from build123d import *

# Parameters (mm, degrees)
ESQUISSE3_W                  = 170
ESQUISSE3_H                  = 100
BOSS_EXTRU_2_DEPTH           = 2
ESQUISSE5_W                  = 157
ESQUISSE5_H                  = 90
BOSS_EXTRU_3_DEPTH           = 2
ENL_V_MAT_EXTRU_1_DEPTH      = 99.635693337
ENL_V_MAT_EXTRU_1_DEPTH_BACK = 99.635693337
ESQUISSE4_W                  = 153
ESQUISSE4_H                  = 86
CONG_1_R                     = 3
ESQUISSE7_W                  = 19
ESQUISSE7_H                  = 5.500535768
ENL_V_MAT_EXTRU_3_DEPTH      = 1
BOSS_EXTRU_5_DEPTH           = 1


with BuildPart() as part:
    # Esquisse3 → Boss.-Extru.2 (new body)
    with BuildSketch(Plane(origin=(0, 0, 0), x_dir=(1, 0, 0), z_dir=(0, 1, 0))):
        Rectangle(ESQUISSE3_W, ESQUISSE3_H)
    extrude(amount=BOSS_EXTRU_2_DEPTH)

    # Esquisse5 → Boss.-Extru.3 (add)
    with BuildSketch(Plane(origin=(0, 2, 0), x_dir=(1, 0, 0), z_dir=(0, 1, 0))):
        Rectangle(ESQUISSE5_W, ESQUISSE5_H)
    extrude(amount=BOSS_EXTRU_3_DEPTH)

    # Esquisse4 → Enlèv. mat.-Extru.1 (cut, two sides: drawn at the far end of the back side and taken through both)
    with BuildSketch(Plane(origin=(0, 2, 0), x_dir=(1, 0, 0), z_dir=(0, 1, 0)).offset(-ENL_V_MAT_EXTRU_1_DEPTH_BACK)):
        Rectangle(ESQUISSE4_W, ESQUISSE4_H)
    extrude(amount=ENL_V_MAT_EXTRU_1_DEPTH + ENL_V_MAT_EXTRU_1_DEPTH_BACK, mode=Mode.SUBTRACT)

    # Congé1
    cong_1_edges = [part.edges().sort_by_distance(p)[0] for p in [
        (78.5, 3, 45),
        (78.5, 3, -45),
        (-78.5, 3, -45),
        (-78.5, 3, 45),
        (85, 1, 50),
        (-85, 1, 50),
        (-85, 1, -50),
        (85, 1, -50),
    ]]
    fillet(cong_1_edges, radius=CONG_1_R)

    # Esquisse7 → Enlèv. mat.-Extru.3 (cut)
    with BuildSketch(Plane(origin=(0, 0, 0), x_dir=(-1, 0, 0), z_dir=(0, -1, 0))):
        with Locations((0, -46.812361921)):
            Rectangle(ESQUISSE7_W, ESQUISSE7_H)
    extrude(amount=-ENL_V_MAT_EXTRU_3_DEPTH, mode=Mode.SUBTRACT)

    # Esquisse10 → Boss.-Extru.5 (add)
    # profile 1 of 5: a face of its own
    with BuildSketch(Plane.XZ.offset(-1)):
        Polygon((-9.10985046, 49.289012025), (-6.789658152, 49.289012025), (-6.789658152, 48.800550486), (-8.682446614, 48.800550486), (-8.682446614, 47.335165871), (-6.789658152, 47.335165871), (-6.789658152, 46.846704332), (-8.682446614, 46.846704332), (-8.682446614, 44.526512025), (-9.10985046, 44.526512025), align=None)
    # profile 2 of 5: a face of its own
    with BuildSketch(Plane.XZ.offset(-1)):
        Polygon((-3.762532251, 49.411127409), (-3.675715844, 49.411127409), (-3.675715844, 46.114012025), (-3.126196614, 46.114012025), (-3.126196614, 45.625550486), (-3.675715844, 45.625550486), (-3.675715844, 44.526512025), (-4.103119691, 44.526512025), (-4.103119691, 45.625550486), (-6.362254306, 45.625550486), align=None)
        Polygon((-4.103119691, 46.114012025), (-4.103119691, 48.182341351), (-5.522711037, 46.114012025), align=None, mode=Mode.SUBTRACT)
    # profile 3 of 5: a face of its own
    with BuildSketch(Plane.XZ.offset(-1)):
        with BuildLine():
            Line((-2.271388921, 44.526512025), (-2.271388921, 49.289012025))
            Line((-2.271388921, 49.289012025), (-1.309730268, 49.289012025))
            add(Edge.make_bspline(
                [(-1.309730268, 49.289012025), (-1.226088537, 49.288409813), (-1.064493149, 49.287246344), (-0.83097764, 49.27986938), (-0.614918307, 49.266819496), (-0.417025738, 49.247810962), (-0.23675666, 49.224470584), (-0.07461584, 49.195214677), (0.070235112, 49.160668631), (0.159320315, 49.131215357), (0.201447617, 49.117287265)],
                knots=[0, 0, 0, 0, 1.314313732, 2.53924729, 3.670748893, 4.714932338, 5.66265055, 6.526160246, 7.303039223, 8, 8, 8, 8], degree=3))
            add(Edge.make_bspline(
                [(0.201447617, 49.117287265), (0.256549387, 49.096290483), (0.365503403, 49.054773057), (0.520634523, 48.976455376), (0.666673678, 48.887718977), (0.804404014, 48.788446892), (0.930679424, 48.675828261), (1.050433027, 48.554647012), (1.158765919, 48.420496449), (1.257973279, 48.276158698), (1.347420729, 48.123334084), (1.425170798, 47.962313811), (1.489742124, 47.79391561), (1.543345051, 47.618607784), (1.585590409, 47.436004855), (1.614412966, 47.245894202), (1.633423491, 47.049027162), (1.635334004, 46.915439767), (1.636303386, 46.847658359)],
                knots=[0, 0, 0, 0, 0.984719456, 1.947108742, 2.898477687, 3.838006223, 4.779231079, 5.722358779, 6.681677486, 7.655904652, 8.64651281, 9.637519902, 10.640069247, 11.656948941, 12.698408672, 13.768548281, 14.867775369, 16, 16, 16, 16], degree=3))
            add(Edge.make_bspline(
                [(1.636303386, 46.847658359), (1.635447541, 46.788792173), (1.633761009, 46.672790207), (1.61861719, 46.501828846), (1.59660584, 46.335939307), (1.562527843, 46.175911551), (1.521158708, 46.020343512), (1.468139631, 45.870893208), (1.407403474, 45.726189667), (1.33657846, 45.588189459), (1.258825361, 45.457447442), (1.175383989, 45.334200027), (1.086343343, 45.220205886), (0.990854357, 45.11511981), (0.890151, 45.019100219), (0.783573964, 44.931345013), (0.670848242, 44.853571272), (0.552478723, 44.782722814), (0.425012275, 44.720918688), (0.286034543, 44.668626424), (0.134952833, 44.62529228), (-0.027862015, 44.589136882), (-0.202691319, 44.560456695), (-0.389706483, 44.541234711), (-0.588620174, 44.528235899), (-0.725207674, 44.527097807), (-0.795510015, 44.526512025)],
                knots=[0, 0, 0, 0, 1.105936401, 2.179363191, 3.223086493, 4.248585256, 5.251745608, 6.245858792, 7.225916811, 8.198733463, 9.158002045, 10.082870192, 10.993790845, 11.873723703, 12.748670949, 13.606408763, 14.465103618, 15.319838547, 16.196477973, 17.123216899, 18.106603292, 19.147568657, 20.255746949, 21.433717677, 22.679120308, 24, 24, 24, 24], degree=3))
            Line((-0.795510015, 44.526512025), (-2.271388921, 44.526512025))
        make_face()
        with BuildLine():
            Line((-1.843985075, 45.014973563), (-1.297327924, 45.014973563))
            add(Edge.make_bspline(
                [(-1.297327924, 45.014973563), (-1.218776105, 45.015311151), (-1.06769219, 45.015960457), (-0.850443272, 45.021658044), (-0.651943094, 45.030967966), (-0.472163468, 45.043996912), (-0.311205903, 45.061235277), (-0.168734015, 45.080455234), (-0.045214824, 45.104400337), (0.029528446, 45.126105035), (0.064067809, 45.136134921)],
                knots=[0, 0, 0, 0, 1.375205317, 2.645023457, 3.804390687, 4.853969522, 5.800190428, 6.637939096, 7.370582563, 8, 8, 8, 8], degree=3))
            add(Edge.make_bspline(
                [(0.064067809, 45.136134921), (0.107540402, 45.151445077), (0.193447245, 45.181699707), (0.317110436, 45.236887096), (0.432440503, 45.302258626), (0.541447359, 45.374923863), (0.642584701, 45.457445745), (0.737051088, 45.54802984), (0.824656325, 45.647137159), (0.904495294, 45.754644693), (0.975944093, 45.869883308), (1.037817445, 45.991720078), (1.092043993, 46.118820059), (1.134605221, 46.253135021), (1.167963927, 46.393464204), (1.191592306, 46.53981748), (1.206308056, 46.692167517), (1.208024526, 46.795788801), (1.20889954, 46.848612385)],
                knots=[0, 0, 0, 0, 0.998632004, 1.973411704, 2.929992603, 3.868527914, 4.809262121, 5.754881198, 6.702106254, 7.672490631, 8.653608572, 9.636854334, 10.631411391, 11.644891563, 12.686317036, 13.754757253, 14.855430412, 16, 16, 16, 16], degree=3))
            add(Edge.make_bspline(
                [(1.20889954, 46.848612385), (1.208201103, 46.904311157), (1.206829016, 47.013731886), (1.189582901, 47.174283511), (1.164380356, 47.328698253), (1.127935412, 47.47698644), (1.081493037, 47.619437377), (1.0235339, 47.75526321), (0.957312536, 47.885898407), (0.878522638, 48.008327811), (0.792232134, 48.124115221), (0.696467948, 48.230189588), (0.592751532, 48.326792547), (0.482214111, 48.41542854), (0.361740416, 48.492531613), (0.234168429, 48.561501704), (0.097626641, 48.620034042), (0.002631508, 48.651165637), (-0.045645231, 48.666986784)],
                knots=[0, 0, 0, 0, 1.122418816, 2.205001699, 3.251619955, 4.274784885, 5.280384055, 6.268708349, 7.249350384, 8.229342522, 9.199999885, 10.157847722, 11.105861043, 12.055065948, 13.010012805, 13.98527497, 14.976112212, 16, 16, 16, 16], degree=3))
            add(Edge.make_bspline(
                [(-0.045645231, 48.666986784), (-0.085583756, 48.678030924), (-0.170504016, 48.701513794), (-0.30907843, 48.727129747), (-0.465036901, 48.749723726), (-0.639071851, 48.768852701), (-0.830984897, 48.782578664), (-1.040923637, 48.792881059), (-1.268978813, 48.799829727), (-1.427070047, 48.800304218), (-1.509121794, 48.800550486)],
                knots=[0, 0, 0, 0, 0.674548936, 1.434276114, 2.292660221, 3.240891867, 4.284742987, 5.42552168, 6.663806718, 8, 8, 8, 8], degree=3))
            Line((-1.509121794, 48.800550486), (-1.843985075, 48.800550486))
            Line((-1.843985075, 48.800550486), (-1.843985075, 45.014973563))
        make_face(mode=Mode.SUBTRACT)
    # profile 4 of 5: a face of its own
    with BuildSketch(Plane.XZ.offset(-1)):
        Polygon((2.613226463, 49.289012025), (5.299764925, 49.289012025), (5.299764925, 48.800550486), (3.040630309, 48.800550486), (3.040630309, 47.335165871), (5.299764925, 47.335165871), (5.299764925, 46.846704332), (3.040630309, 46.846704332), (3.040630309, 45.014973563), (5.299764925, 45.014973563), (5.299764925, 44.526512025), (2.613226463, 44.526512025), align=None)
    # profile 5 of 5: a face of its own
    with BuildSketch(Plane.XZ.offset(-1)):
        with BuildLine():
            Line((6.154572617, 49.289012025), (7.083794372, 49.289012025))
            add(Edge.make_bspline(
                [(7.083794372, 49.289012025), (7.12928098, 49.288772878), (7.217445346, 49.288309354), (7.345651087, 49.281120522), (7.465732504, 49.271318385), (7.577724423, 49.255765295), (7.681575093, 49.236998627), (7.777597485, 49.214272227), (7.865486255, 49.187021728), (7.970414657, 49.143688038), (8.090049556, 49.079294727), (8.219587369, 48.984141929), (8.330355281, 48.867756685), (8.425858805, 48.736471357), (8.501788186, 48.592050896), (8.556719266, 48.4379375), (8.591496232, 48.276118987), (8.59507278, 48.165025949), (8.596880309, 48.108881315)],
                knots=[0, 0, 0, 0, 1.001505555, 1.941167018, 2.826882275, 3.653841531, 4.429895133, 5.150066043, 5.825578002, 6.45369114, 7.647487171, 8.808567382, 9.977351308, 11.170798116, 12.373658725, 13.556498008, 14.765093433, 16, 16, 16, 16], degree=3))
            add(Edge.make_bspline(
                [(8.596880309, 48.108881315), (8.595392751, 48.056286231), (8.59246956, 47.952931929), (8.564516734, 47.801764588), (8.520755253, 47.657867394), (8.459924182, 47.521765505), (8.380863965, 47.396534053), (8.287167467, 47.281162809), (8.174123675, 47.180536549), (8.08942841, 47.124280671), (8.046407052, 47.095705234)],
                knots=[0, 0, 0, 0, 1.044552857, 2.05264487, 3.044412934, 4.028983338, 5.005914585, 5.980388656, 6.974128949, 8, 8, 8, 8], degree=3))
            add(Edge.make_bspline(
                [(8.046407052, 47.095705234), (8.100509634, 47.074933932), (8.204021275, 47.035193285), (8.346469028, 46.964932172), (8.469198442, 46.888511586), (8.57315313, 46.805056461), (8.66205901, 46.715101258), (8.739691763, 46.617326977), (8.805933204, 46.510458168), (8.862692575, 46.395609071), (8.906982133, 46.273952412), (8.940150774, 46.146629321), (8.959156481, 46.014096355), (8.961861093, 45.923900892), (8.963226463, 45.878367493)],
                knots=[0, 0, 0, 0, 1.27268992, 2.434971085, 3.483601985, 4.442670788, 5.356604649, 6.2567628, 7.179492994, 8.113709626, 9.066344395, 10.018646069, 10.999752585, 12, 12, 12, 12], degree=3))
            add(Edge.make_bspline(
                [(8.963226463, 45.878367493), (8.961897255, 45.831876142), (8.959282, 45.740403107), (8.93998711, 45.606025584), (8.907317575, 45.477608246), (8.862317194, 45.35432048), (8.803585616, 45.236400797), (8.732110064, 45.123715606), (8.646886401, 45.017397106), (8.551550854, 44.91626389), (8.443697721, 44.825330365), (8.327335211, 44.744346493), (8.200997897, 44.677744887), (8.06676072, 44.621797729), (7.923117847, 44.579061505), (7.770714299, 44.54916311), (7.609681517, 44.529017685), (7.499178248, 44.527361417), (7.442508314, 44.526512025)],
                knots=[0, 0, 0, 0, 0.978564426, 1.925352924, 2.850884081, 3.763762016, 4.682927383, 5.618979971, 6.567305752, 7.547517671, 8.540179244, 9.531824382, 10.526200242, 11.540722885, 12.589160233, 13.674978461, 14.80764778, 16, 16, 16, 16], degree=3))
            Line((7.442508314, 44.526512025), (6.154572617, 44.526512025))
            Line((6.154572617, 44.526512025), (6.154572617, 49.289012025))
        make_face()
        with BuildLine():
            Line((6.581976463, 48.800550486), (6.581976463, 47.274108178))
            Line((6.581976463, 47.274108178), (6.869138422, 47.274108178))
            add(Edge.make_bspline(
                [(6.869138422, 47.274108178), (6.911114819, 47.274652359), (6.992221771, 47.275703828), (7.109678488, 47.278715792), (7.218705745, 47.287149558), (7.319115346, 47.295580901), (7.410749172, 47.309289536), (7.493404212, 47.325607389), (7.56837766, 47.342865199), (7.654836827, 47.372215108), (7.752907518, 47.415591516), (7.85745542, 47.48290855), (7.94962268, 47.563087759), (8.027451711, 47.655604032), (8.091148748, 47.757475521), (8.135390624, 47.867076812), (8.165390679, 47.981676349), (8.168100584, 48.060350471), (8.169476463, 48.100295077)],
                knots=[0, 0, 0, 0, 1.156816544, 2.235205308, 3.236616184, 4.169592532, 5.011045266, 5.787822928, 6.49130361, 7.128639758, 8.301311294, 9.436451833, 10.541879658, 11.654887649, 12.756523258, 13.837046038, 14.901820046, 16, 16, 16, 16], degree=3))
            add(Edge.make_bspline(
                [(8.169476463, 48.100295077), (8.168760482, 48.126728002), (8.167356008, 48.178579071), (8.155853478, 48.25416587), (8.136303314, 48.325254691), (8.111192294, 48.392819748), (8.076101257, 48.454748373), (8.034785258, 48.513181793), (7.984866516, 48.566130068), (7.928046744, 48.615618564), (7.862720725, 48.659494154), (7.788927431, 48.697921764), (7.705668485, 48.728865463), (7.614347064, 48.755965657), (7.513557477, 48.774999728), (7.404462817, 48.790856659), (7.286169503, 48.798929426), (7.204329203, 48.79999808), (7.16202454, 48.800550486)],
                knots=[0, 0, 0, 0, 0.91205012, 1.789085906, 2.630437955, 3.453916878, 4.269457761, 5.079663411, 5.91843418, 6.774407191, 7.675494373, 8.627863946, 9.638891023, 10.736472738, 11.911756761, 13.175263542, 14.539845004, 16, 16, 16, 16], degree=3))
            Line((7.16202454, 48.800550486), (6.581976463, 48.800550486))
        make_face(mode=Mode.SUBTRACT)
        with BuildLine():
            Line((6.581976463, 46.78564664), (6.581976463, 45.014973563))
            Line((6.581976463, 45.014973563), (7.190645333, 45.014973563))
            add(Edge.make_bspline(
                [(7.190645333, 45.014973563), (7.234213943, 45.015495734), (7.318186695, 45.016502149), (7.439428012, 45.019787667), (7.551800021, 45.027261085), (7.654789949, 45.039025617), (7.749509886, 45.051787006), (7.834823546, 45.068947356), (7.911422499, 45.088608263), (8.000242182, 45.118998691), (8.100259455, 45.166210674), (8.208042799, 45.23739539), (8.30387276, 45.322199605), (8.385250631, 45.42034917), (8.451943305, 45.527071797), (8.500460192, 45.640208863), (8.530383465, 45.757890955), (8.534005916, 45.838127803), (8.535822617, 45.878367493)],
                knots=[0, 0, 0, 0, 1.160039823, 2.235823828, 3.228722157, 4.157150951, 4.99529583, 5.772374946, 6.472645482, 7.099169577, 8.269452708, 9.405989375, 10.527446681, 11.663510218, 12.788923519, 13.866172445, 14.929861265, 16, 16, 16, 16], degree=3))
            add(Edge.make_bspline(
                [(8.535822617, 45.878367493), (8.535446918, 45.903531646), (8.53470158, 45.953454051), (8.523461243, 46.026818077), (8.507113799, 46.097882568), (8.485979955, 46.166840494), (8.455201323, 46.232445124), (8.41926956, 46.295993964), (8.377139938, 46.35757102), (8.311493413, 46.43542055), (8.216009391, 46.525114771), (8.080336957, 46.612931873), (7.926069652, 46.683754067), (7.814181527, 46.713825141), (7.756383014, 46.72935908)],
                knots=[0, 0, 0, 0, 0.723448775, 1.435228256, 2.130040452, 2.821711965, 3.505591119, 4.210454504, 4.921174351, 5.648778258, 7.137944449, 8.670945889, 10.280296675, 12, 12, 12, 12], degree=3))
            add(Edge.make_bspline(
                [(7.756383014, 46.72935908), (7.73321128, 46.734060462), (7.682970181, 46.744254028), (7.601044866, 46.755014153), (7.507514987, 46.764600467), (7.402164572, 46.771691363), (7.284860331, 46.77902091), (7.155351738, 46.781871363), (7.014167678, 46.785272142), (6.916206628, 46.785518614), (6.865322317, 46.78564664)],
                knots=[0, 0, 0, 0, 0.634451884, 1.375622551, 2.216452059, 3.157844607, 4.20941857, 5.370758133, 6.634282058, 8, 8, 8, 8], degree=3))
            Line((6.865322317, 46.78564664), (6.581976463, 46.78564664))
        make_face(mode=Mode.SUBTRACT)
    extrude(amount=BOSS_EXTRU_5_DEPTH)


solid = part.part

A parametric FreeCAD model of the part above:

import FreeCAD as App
import Part
import Sketcher
Q = App.Units.Quantity


def edges_at(feature, points):
    """Names of the edges that pass closest to the given points."""
    edges = feature.Shape.Edges
    near = lambda p: min(range(len(edges)), key=lambda i: edges[i].distToShape(Part.Vertex(*p))[0])
    return sorted({f"Edge{near(p) + 1}" for p in points})


def add_polygon(sketch, points):
    """Adds a closed chain of lines whose ends are joined by coincident constraints."""
    first, n = sketch.GeometryCount, len(points)
    for a, b in zip(points, points[1:] + points[:1]):
        sketch.addGeometry(Part.LineSegment(App.Vector(*a, 0), App.Vector(*b, 0)), False)
    for i in range(n):
        sketch.addConstraint(Sketcher.Constraint("Coincident", first + i, 2, first + (i + 1) % n, 1))

doc = App.newDocument("Part")
params = doc.addObject("Spreadsheet::Sheet", "Params")
for row, (alias, value) in enumerate([
    ("sketch1_width", "170 mm"),
    ("sketch1_height", "100 mm"),
    ("pad1_length", "2 mm"),
    ("sketch2_width", "157 mm"),
    ("sketch2_height", "90 mm"),
    ("pad2_length", "2 mm"),
    ("sketch3_width", "153 mm"),
    ("sketch3_height", "86 mm"),
    ("fillet_radius", "3 mm"),
    ("sketch4_width", "19 mm"),
    ("pocket2_length", "1 mm"),
    ("pad3_length", "1 mm"),
], start=1):
    params.set(f"A{row}", alias)
    params.set(f"B{row}", "=" + value)
    params.setAlias(f"B{row}", alias)

body = doc.addObject("PartDesign::Body", "Body")

sketch1 = body.newObject("Sketcher::SketchObject", "Sketch")
sketch1.AttachmentSupport = (doc.getObject("XZ_Plane"), [""])
sketch1.MapMode = "FlatFace"
add_polygon(sketch1, [(-85, -50), (-85, 50), (85, 50), (85, -50)])
sketch1.addConstraint([
    Sketcher.Constraint("Vertical", 0),
    Sketcher.Constraint("Horizontal", 1),
    Sketcher.Constraint("Vertical", 2),
    Sketcher.Constraint("Horizontal", 3),
    Sketcher.Constraint("Symmetric", 0, 2, 2, 2, -1, 1),
    Sketcher.Constraint("DistanceX", 1, 1, 1, 2, Q("170 mm")),
    Sketcher.Constraint("DistanceY", 0, 1, 0, 2, Q("100 mm")),
])
sketch1.setExpression("Constraints[9]", "Params.sketch1_width")
sketch1.setExpression("Constraints[10]", "Params.sketch1_height")
pad1 = body.newObject("PartDesign::Pad", "Pad")
pad1.Profile = sketch1
pad1.setExpression("Length", "Params.pad1_length")
pad1.Reversed = True

sketch2 = body.newObject("Sketcher::SketchObject", "Sketch001")
sketch2.AttachmentSupport = (doc.getObject("XZ_Plane"), [""])
sketch2.MapMode = "FlatFace"
sketch2.AttachmentOffset = App.Placement(App.Vector(0, 0, -2), App.Rotation())
add_polygon(sketch2, [(-78, -45), (-78, 45), (78, 45), (78, -45)])
sketch2.addConstraint([
    Sketcher.Constraint("Vertical", 0),
    Sketcher.Constraint("Horizontal", 1),
    Sketcher.Constraint("Vertical", 2),
    Sketcher.Constraint("Horizontal", 3),
    Sketcher.Constraint("Symmetric", 0, 2, 2, 2, -1, 1),
    Sketcher.Constraint("DistanceX", 1, 1, 1, 2, Q("157 mm")),
    Sketcher.Constraint("DistanceY", 0, 1, 0, 2, Q("90 mm")),
])
sketch2.setExpression("Constraints[9]", "Params.sketch2_width")
sketch2.setExpression("Constraints[10]", "Params.sketch2_height")
pad2 = body.newObject("PartDesign::Pad", "Pad001")
pad2.Profile = sketch2
pad2.setExpression("Length", "Params.pad2_length")
pad2.Reversed = True

sketch3 = body.newObject("Sketcher::SketchObject", "Sketch002")
sketch3.AttachmentSupport = (doc.getObject("XZ_Plane"), [""])
sketch3.MapMode = "FlatFace"
sketch3.AttachmentOffset = App.Placement(App.Vector(0, 0, -2), App.Rotation())
add_polygon(sketch3, [(-76, -43), (-76, 43), (76, 43), (76, -43)])
sketch3.addConstraint([
    Sketcher.Constraint("Vertical", 0),
    Sketcher.Constraint("Horizontal", 1),
    Sketcher.Constraint("Vertical", 2),
    Sketcher.Constraint("Horizontal", 3),
    Sketcher.Constraint("Symmetric", 0, 2, 2, 2, -1, 1),
    Sketcher.Constraint("DistanceX", 1, 1, 1, 2, Q("153 mm")),
    Sketcher.Constraint("DistanceY", 0, 1, 0, 2, Q("86 mm")),
])
sketch3.setExpression("Constraints[9]", "Params.sketch3_width")
sketch3.setExpression("Constraints[10]", "Params.sketch3_height")
pocket1 = body.newObject("PartDesign::Pocket", "Pocket")
pocket1.Profile = sketch3
pocket1.Type = "ThroughAll"
pocket1.Midplane = True
doc.recompute()

fillet = body.newObject("PartDesign::Fillet", "Fillet")
fillet.Base = (pocket1, edges_at(pocket1, [
    (78.5, 3, 45),
    (78.5, 3, -45),
    (-78.5, 3, -45),
    (-78.5, 3, 45),
    (85, 1, 50),
    (-85, 1, 50),
    (-85, 1, -50),
    (85, 1, -50),
]))
fillet.setExpression("Radius", "Params.fillet_radius")

sketch4 = body.newObject("Sketcher::SketchObject", "Sketch003")
sketch4.AttachmentSupport = (doc.getObject("XZ_Plane"), [""])
sketch4.MapMode = "FlatFace"
add_polygon(sketch4, [(10, 44), (10, 50), (-10, 50), (-10, 44)])
sketch4.addConstraint([
    Sketcher.Constraint("Vertical", 0),
    Sketcher.Constraint("Horizontal", 1),
    Sketcher.Constraint("Vertical", 2),
    Sketcher.Constraint("Horizontal", 3),
    Sketcher.Constraint("DistanceX", 1, 2, 1, 1, Q("19 mm")),
    Sketcher.Constraint("DistanceX", -1, 1, 0, 2, Q("9.5 mm")),
    Sketcher.Constraint("DistanceY", 0, 1, 0, 2, Q("5.500536 mm")),
    Sketcher.Constraint("DistanceY", -1, 1, 0, 2, Q("49.56263 mm")),
])
sketch4.setExpression("Constraints[8]", "Params.sketch4_width")
pocket2 = body.newObject("PartDesign::Pocket", "Pocket001")
pocket2.Profile = sketch4
pocket2.setExpression("Length", "Params.pocket2_length")

sketch5 = body.newObject("Sketcher::SketchObject", "Sketch004")
sketch5.AttachmentSupport = (doc.getObject("XZ_Plane"), [""])
sketch5.MapMode = "FlatFace"
sketch5.AttachmentOffset = App.Placement(App.Vector(0, 0, -1), App.Rotation())
add_polygon(sketch5, [(-6.789658, 49.289012), (-9.10985, 49.289012), (-9.10985, 44.526512), (-8.682447, 44.526512), (-8.682447, 46.846704), (-6.789658, 46.846704), (-6.789658, 47.335166), (-8.682447, 47.335166), (-8.682447, 48.80055), (-6.789658, 48.80055)])
add_polygon(sketch5, [(-3.675716, 49.411127), (-3.762532, 49.411127), (-6.362254, 45.62555), (-4.10312, 45.62555), (-4.10312, 44.526512), (-3.675716, 44.526512), (-3.675716, 45.62555), (-3.126197, 45.62555), (-3.126197, 46.114012), (-3.675716, 46.114012)])
add_polygon(sketch5, [(-4.10312, 46.114012), (-5.522711, 46.114012), (-4.10312, 48.182341)])
sketch5.addGeometry(Part.LineSegment(App.Vector(-2.271389, 49.289012, 0), App.Vector(-2.271389, 44.526512, 0)), False)
sketch5.addGeometry(Part.LineSegment(App.Vector(-2.271389, 44.526512, 0), App.Vector(-0.79551, 44.526512, 0)), False)
sketch5.addGeometry(Part.BSplineCurve([App.Vector(1.636303, 46.847658, 0), App.Vector(1.635448, 46.788792, 0), App.Vector(1.633761, 46.67279, 0), App.Vector(1.618617, 46.501829, 0), App.Vector(1.596606, 46.335939, 0), App.Vector(1.562528, 46.175912, 0), App.Vector(1.521159, 46.020344, 0), App.Vector(1.46814, 45.870893, 0), App.Vector(1.407403, 45.72619, 0), App.Vector(1.336578, 45.588189, 0), App.Vector(1.258825, 45.457447, 0), App.Vector(1.175384, 45.3342, 0), App.Vector(1.086343, 45.220206, 0), App.Vector(0.990854, 45.11512, 0), App.Vector(0.890151, 45.0191, 0), App.Vector(0.783574, 44.931345, 0), App.Vector(0.670848, 44.853571, 0), App.Vector(0.552479, 44.782723, 0), App.Vector(0.425012, 44.720919, 0), App.Vector(0.286035, 44.668626, 0), App.Vector(0.134953, 44.625292, 0), App.Vector(-0.027862, 44.589137, 0), App.Vector(-0.202691, 44.560457, 0), App.Vector(-0.389706, 44.541235, 0), App.Vector(-0.58862, 44.528236, 0), App.Vector(-0.725208, 44.527098, 0), App.Vector(-0.79551, 44.526512, 0)], [4, 1, 1, 1, 1, 1, 1, 1, 1, 1, 1, 1, 1, 1, 1, 1, 1, 1, 1, 1, 1, 1, 1, 1, 4], [0, 1.105936401, 2.179363191, 3.223086493, 4.248585256, 5.251745608, 6.245858792, 7.225916811, 8.198733463, 9.158002045, 10.082870192, 10.993790845, 11.873723703, 12.748670949, 13.606408763, 14.465103618, 15.319838547, 16.196477973, 17.123216899, 18.106603292, 19.147568657, 20.255746949, 21.433717677, 22.679120308, 24], False, 3, [1, 1, 1, 1, 1, 1, 1, 1, 1, 1, 1, 1, 1, 1, 1, 1, 1, 1, 1, 1, 1, 1, 1, 1, 1, 1, 1], False), False)
sketch5.addGeometry(Part.BSplineCurve([App.Vector(0.201448, 49.117287, 0), App.Vector(0.256549, 49.09629, 0), App.Vector(0.365503, 49.054773, 0), App.Vector(0.520635, 48.976455, 0), App.Vector(0.666674, 48.887719, 0), App.Vector(0.804404, 48.788447, 0), App.Vector(0.930679, 48.675828, 0), App.Vector(1.050433, 48.554647, 0), App.Vector(1.158766, 48.420496, 0), App.Vector(1.257973, 48.276159, 0), App.Vector(1.347421, 48.123334, 0), App.Vector(1.425171, 47.962314, 0), App.Vector(1.489742, 47.793916, 0), App.Vector(1.543345, 47.618608, 0), App.Vector(1.58559, 47.436005, 0), App.Vector(1.614413, 47.245894, 0), App.Vector(1.633423, 47.049027, 0), App.Vector(1.635334, 46.91544, 0), App.Vector(1.636303, 46.847658, 0)], [4, 1, 1, 1, 1, 1, 1, 1, 1, 1, 1, 1, 1, 1, 1, 1, 4], [0, 0.984719456, 1.947108742, 2.898477687, 3.838006223, 4.779231079, 5.722358779, 6.681677486, 7.655904652, 8.64651281, 9.637519902, 10.640069247, 11.656948941, 12.698408672, 13.768548281, 14.867775369, 16], False, 3, [1, 1, 1, 1, 1, 1, 1, 1, 1, 1, 1, 1, 1, 1, 1, 1, 1, 1, 1], False), False)
sketch5.addGeometry(Part.BSplineCurve([App.Vector(-1.30973, 49.289012, 0), App.Vector(-1.226089, 49.28841, 0), App.Vector(-1.064493, 49.287246, 0), App.Vector(-0.830978, 49.279869, 0), App.Vector(-0.614918, 49.266819, 0), App.Vector(-0.417026, 49.247811, 0), App.Vector(-0.236757, 49.224471, 0), App.Vector(-0.074616, 49.195215, 0), App.Vector(0.070235, 49.160669, 0), App.Vector(0.15932, 49.131215, 0), App.Vector(0.201448, 49.117287, 0)], [4, 1, 1, 1, 1, 1, 1, 1, 4], [0, 1.314313732, 2.53924729, 3.670748893, 4.714932338, 5.66265055, 6.526160246, 7.303039223, 8], False, 3, [1, 1, 1, 1, 1, 1, 1, 1, 1, 1, 1], False), False)
sketch5.addGeometry(Part.LineSegment(App.Vector(-1.30973, 49.289012, 0), App.Vector(-2.271389, 49.289012, 0)), False)
sketch5.addGeometry(Part.LineSegment(App.Vector(-1.843985, 45.014974, 0), App.Vector(-1.843985, 48.80055, 0)), False)
sketch5.addGeometry(Part.LineSegment(App.Vector(-1.843985, 48.80055, 0), App.Vector(-1.509122, 48.80055, 0)), False)
sketch5.addGeometry(Part.BSplineCurve([App.Vector(-0.045645, 48.666987, 0), App.Vector(-0.085584, 48.678031, 0), App.Vector(-0.170504, 48.701514, 0), App.Vector(-0.309078, 48.72713, 0), App.Vector(-0.465037, 48.749724, 0), App.Vector(-0.639072, 48.768853, 0), App.Vector(-0.830985, 48.782579, 0), App.Vector(-1.040924, 48.792881, 0), App.Vector(-1.268979, 48.79983, 0), App.Vector(-1.42707, 48.800304, 0), App.Vector(-1.509122, 48.80055, 0)], [4, 1, 1, 1, 1, 1, 1, 1, 4], [0, 0.674548936, 1.434276114, 2.292660221, 3.240891867, 4.284742987, 5.42552168, 6.663806718, 8], False, 3, [1, 1, 1, 1, 1, 1, 1, 1, 1, 1, 1], False), False)
sketch5.addGeometry(Part.BSplineCurve([App.Vector(1.2089, 46.848612, 0), App.Vector(1.208201, 46.904311, 0), App.Vector(1.206829, 47.013732, 0), App.Vector(1.189583, 47.174284, 0), App.Vector(1.16438, 47.328698, 0), App.Vector(1.127935, 47.476986, 0), App.Vector(1.081493, 47.619437, 0), App.Vector(1.023534, 47.755263, 0), App.Vector(0.957313, 47.885898, 0), App.Vector(0.878523, 48.008328, 0), App.Vector(0.792232, 48.124115, 0), App.Vector(0.696468, 48.23019, 0), App.Vector(0.592752, 48.326793, 0), App.Vector(0.482214, 48.415429, 0), App.Vector(0.36174, 48.492532, 0), App.Vector(0.234168, 48.561502, 0), App.Vector(0.097627, 48.620034, 0), App.Vector(0.002632, 48.651166, 0), App.Vector(-0.045645, 48.666987, 0)], [4, 1, 1, 1, 1, 1, 1, 1, 1, 1, 1, 1, 1, 1, 1, 1, 4], [0, 1.122418816, 2.205001699, 3.251619955, 4.274784885, 5.280384055, 6.268708349, 7.249350384, 8.229342522, 9.199999885, 10.157847722, 11.105861043, 12.055065948, 13.010012805, 13.98527497, 14.976112212, 16], False, 3, [1, 1, 1, 1, 1, 1, 1, 1, 1, 1, 1, 1, 1, 1, 1, 1, 1, 1, 1], False), False)
sketch5.addGeometry(Part.BSplineCurve([App.Vector(0.064068, 45.136135, 0), App.Vector(0.10754, 45.151445, 0), App.Vector(0.193447, 45.1817, 0), App.Vector(0.31711, 45.236887, 0), App.Vector(0.432441, 45.302259, 0), App.Vector(0.541447, 45.374924, 0), App.Vector(0.642585, 45.457446, 0), App.Vector(0.737051, 45.54803, 0), App.Vector(0.824656, 45.647137, 0), App.Vector(0.904495, 45.754645, 0), App.Vector(0.975944, 45.869883, 0), App.Vector(1.037817, 45.99172, 0), App.Vector(1.092044, 46.11882, 0), App.Vector(1.134605, 46.253135, 0), App.Vector(1.167964, 46.393464, 0), App.Vector(1.191592, 46.539817, 0), App.Vector(1.206308, 46.692168, 0), App.Vector(1.208025, 46.795789, 0), App.Vector(1.2089, 46.848612, 0)], [4, 1, 1, 1, 1, 1, 1, 1, 1, 1, 1, 1, 1, 1, 1, 1, 4], [0, 0.998632004, 1.973411704, 2.929992603, 3.868527914, 4.809262121, 5.754881198, 6.702106254, 7.672490631, 8.653608572, 9.636854334, 10.631411391, 11.644891563, 12.686317036, 13.754757253, 14.855430412, 16], False, 3, [1, 1, 1, 1, 1, 1, 1, 1, 1, 1, 1, 1, 1, 1, 1, 1, 1, 1, 1], False), False)
sketch5.addGeometry(Part.BSplineCurve([App.Vector(-1.297328, 45.014974, 0), App.Vector(-1.218776, 45.015311, 0), App.Vector(-1.067692, 45.01596, 0), App.Vector(-0.850443, 45.021658, 0), App.Vector(-0.651943, 45.030968, 0), App.Vector(-0.472163, 45.043997, 0), App.Vector(-0.311206, 45.061235, 0), App.Vector(-0.168734, 45.080455, 0), App.Vector(-0.045215, 45.1044, 0), App.Vector(0.029528, 45.126105, 0), App.Vector(0.064068, 45.136135, 0)], [4, 1, 1, 1, 1, 1, 1, 1, 4], [0, 1.375205317, 2.645023457, 3.804390687, 4.853969522, 5.800190428, 6.637939096, 7.370582563, 8], False, 3, [1, 1, 1, 1, 1, 1, 1, 1, 1, 1, 1], False), False)
sketch5.addGeometry(Part.LineSegment(App.Vector(-1.297328, 45.014974, 0), App.Vector(-1.843985, 45.014974, 0)), False)
add_polygon(sketch5, [(5.299765, 49.289012), (2.613226, 49.289012), (2.613226, 44.526512), (5.299765, 44.526512), (5.299765, 45.014974), (3.04063, 45.014974), (3.04063, 46.846704), (5.299765, 46.846704), (5.299765, 47.335166), (3.04063, 47.335166), (3.04063, 48.80055), (5.299765, 48.80055)])
sketch5.addGeometry(Part.LineSegment(App.Vector(7.083794, 49.289012, 0), App.Vector(6.154573, 49.289012, 0)), False)
sketch5.addGeometry(Part.LineSegment(App.Vector(6.154573, 49.289012, 0), App.Vector(6.154573, 44.526512, 0)), False)
sketch5.addGeometry(Part.LineSegment(App.Vector(6.154573, 44.526512, 0), App.Vector(7.442508, 44.526512, 0)), False)
sketch5.addGeometry(Part.BSplineCurve([App.Vector(8.963226, 45.878367, 0), App.Vector(8.961897, 45.831876, 0), App.Vector(8.959282, 45.740403, 0), App.Vector(8.939987, 45.606026, 0), App.Vector(8.907318, 45.477608, 0), App.Vector(8.862317, 45.35432, 0), App.Vector(8.803586, 45.236401, 0), App.Vector(8.73211, 45.123716, 0), App.Vector(8.646886, 45.017397, 0), App.Vector(8.551551, 44.916264, 0), App.Vector(8.443698, 44.82533, 0), App.Vector(8.327335, 44.744346, 0), App.Vector(8.200998, 44.677745, 0), App.Vector(8.066761, 44.621798, 0), App.Vector(7.923118, 44.579062, 0), App.Vector(7.770714, 44.549163, 0), App.Vector(7.609682, 44.529018, 0), App.Vector(7.499178, 44.527361, 0), App.Vector(7.442508, 44.526512, 0)], [4, 1, 1, 1, 1, 1, 1, 1, 1, 1, 1, 1, 1, 1, 1, 1, 4], [0, 0.978564426, 1.925352924, 2.850884081, 3.763762016, 4.682927383, 5.618979971, 6.567305752, 7.547517671, 8.540179244, 9.531824382, 10.526200242, 11.540722885, 12.589160233, 13.674978461, 14.80764778, 16], False, 3, [1, 1, 1, 1, 1, 1, 1, 1, 1, 1, 1, 1, 1, 1, 1, 1, 1, 1, 1], False), False)
sketch5.addGeometry(Part.BSplineCurve([App.Vector(8.046407, 47.095705, 0), App.Vector(8.10051, 47.074934, 0), App.Vector(8.204021, 47.035193, 0), App.Vector(8.346469, 46.964932, 0), App.Vector(8.469198, 46.888512, 0), App.Vector(8.573153, 46.805056, 0), App.Vector(8.662059, 46.715101, 0), App.Vector(8.739692, 46.617327, 0), App.Vector(8.805933, 46.510458, 0), App.Vector(8.862693, 46.395609, 0), App.Vector(8.906982, 46.273952, 0), App.Vector(8.940151, 46.146629, 0), App.Vector(8.959156, 46.014096, 0), App.Vector(8.961861, 45.923901, 0), App.Vector(8.963226, 45.878367, 0)], [4, 1, 1, 1, 1, 1, 1, 1, 1, 1, 1, 1, 4], [0, 1.27268992, 2.434971085, 3.483601985, 4.442670788, 5.356604649, 6.2567628, 7.179492994, 8.113709626, 9.066344395, 10.018646069, 10.999752585, 12], False, 3, [1, 1, 1, 1, 1, 1, 1, 1, 1, 1, 1, 1, 1, 1, 1], False), False)
sketch5.addGeometry(Part.BSplineCurve([App.Vector(8.59688, 48.108881, 0), App.Vector(8.595393, 48.056286, 0), App.Vector(8.59247, 47.952932, 0), App.Vector(8.564517, 47.801765, 0), App.Vector(8.520755, 47.657867, 0), App.Vector(8.459924, 47.521766, 0), App.Vector(8.380864, 47.396534, 0), App.Vector(8.287167, 47.281163, 0), App.Vector(8.174124, 47.180537, 0), App.Vector(8.089428, 47.124281, 0), App.Vector(8.046407, 47.095705, 0)], [4, 1, 1, 1, 1, 1, 1, 1, 4], [0, 1.044552857, 2.05264487, 3.044412934, 4.028983338, 5.005914585, 5.980388656, 6.974128949, 8], False, 3, [1, 1, 1, 1, 1, 1, 1, 1, 1, 1, 1], False), False)
sketch5.addGeometry(Part.BSplineCurve([App.Vector(7.083794, 49.289012, 0), App.Vector(7.129281, 49.288773, 0), App.Vector(7.217445, 49.288309, 0), App.Vector(7.345651, 49.281121, 0), App.Vector(7.465733, 49.271318, 0), App.Vector(7.577724, 49.255765, 0), App.Vector(7.681575, 49.236999, 0), App.Vector(7.777597, 49.214272, 0), App.Vector(7.865486, 49.187022, 0), App.Vector(7.970415, 49.143688, 0), App.Vector(8.09005, 49.079295, 0), App.Vector(8.219587, 48.984142, 0), App.Vector(8.330355, 48.867757, 0), App.Vector(8.425859, 48.736471, 0), App.Vector(8.501788, 48.592051, 0), App.Vector(8.556719, 48.437937, 0), App.Vector(8.591496, 48.276119, 0), App.Vector(8.595073, 48.165026, 0), App.Vector(8.59688, 48.108881, 0)], [4, 1, 1, 1, 1, 1, 1, 1, 1, 1, 1, 1, 1, 1, 1, 1, 4], [0, 1.001505555, 1.941167018, 2.826882275, 3.653841531, 4.429895133, 5.150066043, 5.825578002, 6.45369114, 7.647487171, 8.808567382, 9.977351308, 11.170798116, 12.373658725, 13.556498008, 14.765093433, 16], False, 3, [1, 1, 1, 1, 1, 1, 1, 1, 1, 1, 1, 1, 1, 1, 1, 1, 1, 1, 1], False), False)
sketch5.addGeometry(Part.LineSegment(App.Vector(6.581976, 46.785647, 0), App.Vector(6.865322, 46.785647, 0)), False)
sketch5.addGeometry(Part.BSplineCurve([App.Vector(7.756383, 46.729359, 0), App.Vector(7.733211, 46.73406, 0), App.Vector(7.68297, 46.744254, 0), App.Vector(7.601045, 46.755014, 0), App.Vector(7.507515, 46.7646, 0), App.Vector(7.402165, 46.771691, 0), App.Vector(7.28486, 46.779021, 0), App.Vector(7.155352, 46.781871, 0), App.Vector(7.014168, 46.785272, 0), App.Vector(6.916207, 46.785519, 0), App.Vector(6.865322, 46.785647, 0)], [4, 1, 1, 1, 1, 1, 1, 1, 4], [0, 0.634451884, 1.375622551, 2.216452059, 3.157844607, 4.20941857, 5.370758133, 6.634282058, 8], False, 3, [1, 1, 1, 1, 1, 1, 1, 1, 1, 1, 1], False), False)
sketch5.addGeometry(Part.BSplineCurve([App.Vector(8.535823, 45.878367, 0), App.Vector(8.535447, 45.903532, 0), App.Vector(8.534702, 45.953454, 0), App.Vector(8.523461, 46.026818, 0), App.Vector(8.507114, 46.097883, 0), App.Vector(8.48598, 46.16684, 0), App.Vector(8.455201, 46.232445, 0), App.Vector(8.41927, 46.295994, 0), App.Vector(8.37714, 46.357571, 0), App.Vector(8.311493, 46.435421, 0), App.Vector(8.216009, 46.525115, 0), App.Vector(8.080337, 46.612932, 0), App.Vector(7.92607, 46.683754, 0), App.Vector(7.814182, 46.713825, 0), App.Vector(7.756383, 46.729359, 0)], [4, 1, 1, 1, 1, 1, 1, 1, 1, 1, 1, 1, 4], [0, 0.723448775, 1.435228256, 2.130040452, 2.821711965, 3.505591119, 4.210454504, 4.921174351, 5.648778258, 7.137944449, 8.670945889, 10.280296675, 12], False, 3, [1, 1, 1, 1, 1, 1, 1, 1, 1, 1, 1, 1, 1, 1, 1], False), False)
sketch5.addGeometry(Part.BSplineCurve([App.Vector(7.190645, 45.014974, 0), App.Vector(7.234214, 45.015496, 0), App.Vector(7.318187, 45.016502, 0), App.Vector(7.439428, 45.019788, 0), App.Vector(7.5518, 45.027261, 0), App.Vector(7.65479, 45.039026, 0), App.Vector(7.74951, 45.051787, 0), App.Vector(7.834824, 45.068947, 0), App.Vector(7.911422, 45.088608, 0), App.Vector(8.000242, 45.118999, 0), App.Vector(8.100259, 45.166211, 0), App.Vector(8.208043, 45.237395, 0), App.Vector(8.303873, 45.3222, 0), App.Vector(8.385251, 45.420349, 0), App.Vector(8.451943, 45.527072, 0), App.Vector(8.50046, 45.640209, 0), App.Vector(8.530383, 45.757891, 0), App.Vector(8.534006, 45.838128, 0), App.Vector(8.535823, 45.878367, 0)], [4, 1, 1, 1, 1, 1, 1, 1, 1, 1, 1, 1, 1, 1, 1, 1, 4], [0, 1.160039823, 2.235823828, 3.228722157, 4.157150951, 4.99529583, 5.772374946, 6.472645482, 7.099169577, 8.269452708, 9.405989375, 10.527446681, 11.663510218, 12.788923519, 13.866172445, 14.929861265, 16], False, 3, [1, 1, 1, 1, 1, 1, 1, 1, 1, 1, 1, 1, 1, 1, 1, 1, 1, 1, 1], False), False)
sketch5.addGeometry(Part.LineSegment(App.Vector(7.190645, 45.014974, 0), App.Vector(6.581976, 45.014974, 0)), False)
sketch5.addGeometry(Part.LineSegment(App.Vector(6.581976, 45.014974, 0), App.Vector(6.581976, 46.785647, 0)), False)
sketch5.addGeometry(Part.LineSegment(App.Vector(6.581976, 48.80055, 0), App.Vector(7.162025, 48.80055, 0)), False)
sketch5.addGeometry(Part.BSplineCurve([App.Vector(8.169476, 48.100295, 0), App.Vector(8.16876, 48.126728, 0), App.Vector(8.167356, 48.178579, 0), App.Vector(8.155853, 48.254166, 0), App.Vector(8.136303, 48.325255, 0), App.Vector(8.111192, 48.39282, 0), App.Vector(8.076101, 48.454748, 0), App.Vector(8.034785, 48.513182, 0), App.Vector(7.984867, 48.56613, 0), App.Vector(7.928047, 48.615619, 0), App.Vector(7.862721, 48.659494, 0), App.Vector(7.788927, 48.697922, 0), App.Vector(7.705668, 48.728865, 0), App.Vector(7.614347, 48.755966, 0), App.Vector(7.513557, 48.775, 0), App.Vector(7.404463, 48.790857, 0), App.Vector(7.28617, 48.798929, 0), App.Vector(7.204329, 48.799998, 0), App.Vector(7.162025, 48.80055, 0)], [4, 1, 1, 1, 1, 1, 1, 1, 1, 1, 1, 1, 1, 1, 1, 1, 4], [0, 0.91205012, 1.789085906, 2.630437955, 3.453916878, 4.269457761, 5.079663411, 5.91843418, 6.774407191, 7.675494373, 8.627863946, 9.638891023, 10.736472738, 11.911756761, 13.175263542, 14.539845004, 16], False, 3, [1, 1, 1, 1, 1, 1, 1, 1, 1, 1, 1, 1, 1, 1, 1, 1, 1, 1, 1], False), False)
sketch5.addGeometry(Part.BSplineCurve([App.Vector(6.869138, 47.274108, 0), App.Vector(6.911115, 47.274652, 0), App.Vector(6.992222, 47.275704, 0), App.Vector(7.109678, 47.278716, 0), App.Vector(7.218706, 47.28715, 0), App.Vector(7.319115, 47.295581, 0), App.Vector(7.410749, 47.30929, 0), App.Vector(7.493404, 47.325607, 0), App.Vector(7.568378, 47.342865, 0), App.Vector(7.654837, 47.372215, 0), App.Vector(7.752908, 47.415592, 0), App.Vector(7.857455, 47.482909, 0), App.Vector(7.949623, 47.563088, 0), App.Vector(8.027452, 47.655604, 0), App.Vector(8.091149, 47.757476, 0), App.Vector(8.135391, 47.867077, 0), App.Vector(8.165391, 47.981676, 0), App.Vector(8.168101, 48.06035, 0), App.Vector(8.169476, 48.100295, 0)], [4, 1, 1, 1, 1, 1, 1, 1, 1, 1, 1, 1, 1, 1, 1, 1, 4], [0, 1.156816544, 2.235205308, 3.236616184, 4.169592532, 5.011045266, 5.787822928, 6.49130361, 7.128639758, 8.301311294, 9.436451833, 10.541879658, 11.654887649, 12.756523258, 13.837046038, 14.901820046, 16], False, 3, [1, 1, 1, 1, 1, 1, 1, 1, 1, 1, 1, 1, 1, 1, 1, 1, 1, 1, 1], False), False)
sketch5.addGeometry(Part.LineSegment(App.Vector(6.869138, 47.274108, 0), App.Vector(6.581976, 47.274108, 0)), False)
sketch5.addGeometry(Part.LineSegment(App.Vector(6.581976, 47.274108, 0), App.Vector(6.581976, 48.80055, 0)), False)
sketch5.addConstraint([
    Sketcher.Constraint("Block", 25),
    Sketcher.Constraint("Block", 26),
    Sketcher.Constraint("Block", 27),
    Sketcher.Constraint("Block", 31),
    Sketcher.Constraint("Block", 32),
    Sketcher.Constraint("Block", 33),
    Sketcher.Constraint("Block", 34),
    Sketcher.Constraint("Block", 51),
    Sketcher.Constraint("Block", 52),
    Sketcher.Constraint("Block", 53),
    Sketcher.Constraint("Block", 54),
    Sketcher.Constraint("Block", 56),
    Sketcher.Constraint("Block", 57),
    Sketcher.Constraint("Block", 58),
    Sketcher.Constraint("Block", 62),
    Sketcher.Constraint("Block", 63),
    Sketcher.Constraint("Coincident", 23, 2, 24, 1),
    Sketcher.Constraint("Coincident", 24, 2, 25, 2),
    Sketcher.Constraint("Coincident", 27, 1, 28, 1),
    Sketcher.Constraint("Coincident", 28, 2, 23, 1),
    Sketcher.Constraint("Coincident", 29, 2, 30, 1),
    Sketcher.Constraint("Coincident", 30, 2, 31, 2),
    Sketcher.Constraint("Coincident", 34, 1, 35, 1),
    Sketcher.Constraint("Coincident", 35, 2, 29, 1),
    Sketcher.Constraint("Coincident", 48, 2, 49, 1),
    Sketcher.Constraint("Coincident", 49, 2, 50, 1),
    Sketcher.Constraint("Coincident", 50, 2, 51, 2),
    Sketcher.Constraint("Coincident", 54, 1, 48, 1),
    Sketcher.Constraint("Coincident", 55, 2, 56, 2),
    Sketcher.Constraint("Coincident", 58, 1, 59, 1),
    Sketcher.Constraint("Coincident", 59, 2, 60, 1),
    Sketcher.Constraint("Coincident", 60, 2, 55, 1),
    Sketcher.Constraint("Coincident", 61, 2, 62, 2),
    Sketcher.Constraint("Coincident", 63, 1, 64, 1),
    Sketcher.Constraint("Coincident", 64, 2, 65, 1),
    Sketcher.Constraint("Coincident", 65, 2, 61, 1),
    Sketcher.Constraint("Horizontal", 0),
    Sketcher.Constraint("Vertical", 1),
    Sketcher.Constraint("Horizontal", 2),
    Sketcher.Constraint("Vertical", 3),
    Sketcher.Constraint("Horizontal", 4),
    Sketcher.Constraint("Vertical", 5),
    Sketcher.Constraint("Horizontal", 6),
    Sketcher.Constraint("Vertical", 7),
    Sketcher.Constraint("Horizontal", 8),
    Sketcher.Constraint("Vertical", 9),
    Sketcher.Constraint("Horizontal", 10),
    Sketcher.Constraint("Horizontal", 12),
    Sketcher.Constraint("Vertical", 13),
    Sketcher.Constraint("Horizontal", 14),
    Sketcher.Constraint("Vertical", 15),
    Sketcher.Constraint("Horizontal", 16),
    Sketcher.Constraint("Vertical", 17),
    Sketcher.Constraint("Horizontal", 18),
    Sketcher.Constraint("Vertical", 19),
    Sketcher.Constraint("Horizontal", 20),
    Sketcher.Constraint("Vertical", 22),
    Sketcher.Constraint("Vertical", 23),
    Sketcher.Constraint("Horizontal", 24),
    Sketcher.Constraint("Horizontal", 28),
    Sketcher.Constraint("Vertical", 29),
    Sketcher.Constraint("Horizontal", 30),
    Sketcher.Constraint("Horizontal", 35),
    Sketcher.Constraint("Horizontal", 36),
    Sketcher.Constraint("Vertical", 37),
    Sketcher.Constraint("Horizontal", 38),
    Sketcher.Constraint("Vertical", 39),
    Sketcher.Constraint("Horizontal", 40),
    Sketcher.Constraint("Vertical", 41),
    Sketcher.Constraint("Horizontal", 42),
    Sketcher.Constraint("Vertical", 43),
    Sketcher.Constraint("Horizontal", 44),
    Sketcher.Constraint("Vertical", 45),
    Sketcher.Constraint("Horizontal", 46),
    Sketcher.Constraint("Vertical", 47),
    Sketcher.Constraint("Horizontal", 48),
    Sketcher.Constraint("Vertical", 49),
    Sketcher.Constraint("Horizontal", 50),
    Sketcher.Constraint("Horizontal", 55),
    Sketcher.Constraint("Horizontal", 59),
    Sketcher.Constraint("Vertical", 60),
    Sketcher.Constraint("Horizontal", 61),
    Sketcher.Constraint("Horizontal", 64),
    Sketcher.Constraint("Vertical", 65),
    Sketcher.Constraint("DistanceY", 1, 2, 1, 1, Q("4.7625 mm")),
    Sketcher.Constraint("DistanceY", 37, 2, 37, 1, Q("4.7625 mm")),
    Sketcher.Constraint("DistanceY", 12, 2, 8, 2, Q("3.175 mm")),
    Sketcher.Constraint("DistanceY", 17, 2, 28, 2, Q("3.175 mm")),
    Sketcher.Constraint("DistanceX", 4, 1, 4, 2, Q("1.892788 mm")),
    Sketcher.Constraint("DistanceX", 6, 2, 6, 1, Q("1.892788 mm")),
    Sketcher.Constraint("DistanceX", 8, 1, 8, 2, Q("1.892788 mm")),
    Sketcher.Constraint("DistanceX", 16, 1, 16, 2, Q("0.549519 mm")),
    Sketcher.Constraint("DistanceX", 18, 2, 18, 1, Q("0.549519 mm")),
    Sketcher.Constraint("DistanceX", 20, 2, 20, 1, Q("1.419591 mm")),
    Sketcher.Constraint("DistanceX", 24, 1, 24, 2, Q("1.475879 mm")),
    Sketcher.Constraint("DistanceX", 36, 2, 36, 1, Q("2.686538 mm")),
    Sketcher.Constraint("DistanceX", 38, 1, 38, 2, Q("2.686538 mm")),
    Sketcher.Constraint("DistanceX", 48, 2, 48, 1, Q("0.929222 mm")),
    Sketcher.Constraint("DistanceX", 59, 2, 59, 1, Q("0.608669 mm")),
    Sketcher.Constraint("DistanceX", 61, 1, 61, 2, Q("0.580048 mm")),
    Sketcher.Constraint("DistanceY", 5, 1, 5, 2, Q("0.488462 mm")),
    Sketcher.Constraint("DistanceY", 9, 1, 9, 2, Q("0.488462 mm")),
    Sketcher.Constraint("DistanceY", 13, 2, 13, 1, Q("1.099038 mm")),
    Sketcher.Constraint("DistanceY", 15, 1, 15, 2, Q("1.099038 mm")),
    Sketcher.Constraint("DistanceY", 17, 1, 17, 2, Q("0.488462 mm")),
    Sketcher.Constraint("DistanceY", 22, 2, 22, 1, Q("2.068329 mm")),
    Sketcher.Constraint("DistanceY", 39, 1, 39, 2, Q("0.488462 mm")),
    Sketcher.Constraint("DistanceY", 41, 1, 41, 2, Q("1.831731 mm")),
    Sketcher.Constraint("DistanceY", 43, 1, 43, 2, Q("0.488462 mm")),
    Sketcher.Constraint("DistanceY", 47, 1, 47, 2, Q("0.488462 mm")),
    Sketcher.Constraint("DistanceY", 24, 2, 36, 2, Q("4.7625 mm")),
    Sketcher.Constraint("DistanceX", 0, 2, 0, 1, Q("2.320192 mm")),
    Sketcher.Constraint("DistanceX", 10, 2, 10, 1, Q("0.086816 mm")),
    Sketcher.Constraint("DistanceX", 12, 1, 12, 2, Q("2.259135 mm")),
    Sketcher.Constraint("DistanceX", 14, 1, 14, 2, Q("0.427404 mm")),
    Sketcher.Constraint("DistanceX", 30, 1, 30, 2, Q("0.334863 mm")),
    Sketcher.Constraint("DistanceX", 40, 2, 40, 1, Q("2.259135 mm")),
    Sketcher.Constraint("DistanceX", 42, 1, 42, 2, Q("2.259135 mm")),
    Sketcher.Constraint("DistanceX", 44, 2, 44, 1, Q("2.259135 mm")),
    Sketcher.Constraint("DistanceY", 3, 1, 3, 2, Q("2.320192 mm")),
    Sketcher.Constraint("DistanceY", 19, 1, 19, 2, Q("3.297115 mm")),
    Sketcher.Constraint("DistanceX", 0, 2, -1, 1, Q("9.10985 mm")),
    Sketcher.Constraint("DistanceX", 12, 2, -1, 1, Q("4.10312 mm")),
    Sketcher.Constraint("DistanceX", 20, 2, -1, 1, Q("5.522711 mm")),
    Sketcher.Constraint("DistanceY", -1, 1, 21, 2, Q("48.182341 mm")),
    Sketcher.Constraint("DistanceX", -1, 1, 40, 2, Q("3.04063 mm")),
])
pad3 = body.newObject("PartDesign::Pad", "Pad002")
pad3.Profile = sketch5
pad3.setExpression("Length", "Params.pad3_length")

doc.recompute()
